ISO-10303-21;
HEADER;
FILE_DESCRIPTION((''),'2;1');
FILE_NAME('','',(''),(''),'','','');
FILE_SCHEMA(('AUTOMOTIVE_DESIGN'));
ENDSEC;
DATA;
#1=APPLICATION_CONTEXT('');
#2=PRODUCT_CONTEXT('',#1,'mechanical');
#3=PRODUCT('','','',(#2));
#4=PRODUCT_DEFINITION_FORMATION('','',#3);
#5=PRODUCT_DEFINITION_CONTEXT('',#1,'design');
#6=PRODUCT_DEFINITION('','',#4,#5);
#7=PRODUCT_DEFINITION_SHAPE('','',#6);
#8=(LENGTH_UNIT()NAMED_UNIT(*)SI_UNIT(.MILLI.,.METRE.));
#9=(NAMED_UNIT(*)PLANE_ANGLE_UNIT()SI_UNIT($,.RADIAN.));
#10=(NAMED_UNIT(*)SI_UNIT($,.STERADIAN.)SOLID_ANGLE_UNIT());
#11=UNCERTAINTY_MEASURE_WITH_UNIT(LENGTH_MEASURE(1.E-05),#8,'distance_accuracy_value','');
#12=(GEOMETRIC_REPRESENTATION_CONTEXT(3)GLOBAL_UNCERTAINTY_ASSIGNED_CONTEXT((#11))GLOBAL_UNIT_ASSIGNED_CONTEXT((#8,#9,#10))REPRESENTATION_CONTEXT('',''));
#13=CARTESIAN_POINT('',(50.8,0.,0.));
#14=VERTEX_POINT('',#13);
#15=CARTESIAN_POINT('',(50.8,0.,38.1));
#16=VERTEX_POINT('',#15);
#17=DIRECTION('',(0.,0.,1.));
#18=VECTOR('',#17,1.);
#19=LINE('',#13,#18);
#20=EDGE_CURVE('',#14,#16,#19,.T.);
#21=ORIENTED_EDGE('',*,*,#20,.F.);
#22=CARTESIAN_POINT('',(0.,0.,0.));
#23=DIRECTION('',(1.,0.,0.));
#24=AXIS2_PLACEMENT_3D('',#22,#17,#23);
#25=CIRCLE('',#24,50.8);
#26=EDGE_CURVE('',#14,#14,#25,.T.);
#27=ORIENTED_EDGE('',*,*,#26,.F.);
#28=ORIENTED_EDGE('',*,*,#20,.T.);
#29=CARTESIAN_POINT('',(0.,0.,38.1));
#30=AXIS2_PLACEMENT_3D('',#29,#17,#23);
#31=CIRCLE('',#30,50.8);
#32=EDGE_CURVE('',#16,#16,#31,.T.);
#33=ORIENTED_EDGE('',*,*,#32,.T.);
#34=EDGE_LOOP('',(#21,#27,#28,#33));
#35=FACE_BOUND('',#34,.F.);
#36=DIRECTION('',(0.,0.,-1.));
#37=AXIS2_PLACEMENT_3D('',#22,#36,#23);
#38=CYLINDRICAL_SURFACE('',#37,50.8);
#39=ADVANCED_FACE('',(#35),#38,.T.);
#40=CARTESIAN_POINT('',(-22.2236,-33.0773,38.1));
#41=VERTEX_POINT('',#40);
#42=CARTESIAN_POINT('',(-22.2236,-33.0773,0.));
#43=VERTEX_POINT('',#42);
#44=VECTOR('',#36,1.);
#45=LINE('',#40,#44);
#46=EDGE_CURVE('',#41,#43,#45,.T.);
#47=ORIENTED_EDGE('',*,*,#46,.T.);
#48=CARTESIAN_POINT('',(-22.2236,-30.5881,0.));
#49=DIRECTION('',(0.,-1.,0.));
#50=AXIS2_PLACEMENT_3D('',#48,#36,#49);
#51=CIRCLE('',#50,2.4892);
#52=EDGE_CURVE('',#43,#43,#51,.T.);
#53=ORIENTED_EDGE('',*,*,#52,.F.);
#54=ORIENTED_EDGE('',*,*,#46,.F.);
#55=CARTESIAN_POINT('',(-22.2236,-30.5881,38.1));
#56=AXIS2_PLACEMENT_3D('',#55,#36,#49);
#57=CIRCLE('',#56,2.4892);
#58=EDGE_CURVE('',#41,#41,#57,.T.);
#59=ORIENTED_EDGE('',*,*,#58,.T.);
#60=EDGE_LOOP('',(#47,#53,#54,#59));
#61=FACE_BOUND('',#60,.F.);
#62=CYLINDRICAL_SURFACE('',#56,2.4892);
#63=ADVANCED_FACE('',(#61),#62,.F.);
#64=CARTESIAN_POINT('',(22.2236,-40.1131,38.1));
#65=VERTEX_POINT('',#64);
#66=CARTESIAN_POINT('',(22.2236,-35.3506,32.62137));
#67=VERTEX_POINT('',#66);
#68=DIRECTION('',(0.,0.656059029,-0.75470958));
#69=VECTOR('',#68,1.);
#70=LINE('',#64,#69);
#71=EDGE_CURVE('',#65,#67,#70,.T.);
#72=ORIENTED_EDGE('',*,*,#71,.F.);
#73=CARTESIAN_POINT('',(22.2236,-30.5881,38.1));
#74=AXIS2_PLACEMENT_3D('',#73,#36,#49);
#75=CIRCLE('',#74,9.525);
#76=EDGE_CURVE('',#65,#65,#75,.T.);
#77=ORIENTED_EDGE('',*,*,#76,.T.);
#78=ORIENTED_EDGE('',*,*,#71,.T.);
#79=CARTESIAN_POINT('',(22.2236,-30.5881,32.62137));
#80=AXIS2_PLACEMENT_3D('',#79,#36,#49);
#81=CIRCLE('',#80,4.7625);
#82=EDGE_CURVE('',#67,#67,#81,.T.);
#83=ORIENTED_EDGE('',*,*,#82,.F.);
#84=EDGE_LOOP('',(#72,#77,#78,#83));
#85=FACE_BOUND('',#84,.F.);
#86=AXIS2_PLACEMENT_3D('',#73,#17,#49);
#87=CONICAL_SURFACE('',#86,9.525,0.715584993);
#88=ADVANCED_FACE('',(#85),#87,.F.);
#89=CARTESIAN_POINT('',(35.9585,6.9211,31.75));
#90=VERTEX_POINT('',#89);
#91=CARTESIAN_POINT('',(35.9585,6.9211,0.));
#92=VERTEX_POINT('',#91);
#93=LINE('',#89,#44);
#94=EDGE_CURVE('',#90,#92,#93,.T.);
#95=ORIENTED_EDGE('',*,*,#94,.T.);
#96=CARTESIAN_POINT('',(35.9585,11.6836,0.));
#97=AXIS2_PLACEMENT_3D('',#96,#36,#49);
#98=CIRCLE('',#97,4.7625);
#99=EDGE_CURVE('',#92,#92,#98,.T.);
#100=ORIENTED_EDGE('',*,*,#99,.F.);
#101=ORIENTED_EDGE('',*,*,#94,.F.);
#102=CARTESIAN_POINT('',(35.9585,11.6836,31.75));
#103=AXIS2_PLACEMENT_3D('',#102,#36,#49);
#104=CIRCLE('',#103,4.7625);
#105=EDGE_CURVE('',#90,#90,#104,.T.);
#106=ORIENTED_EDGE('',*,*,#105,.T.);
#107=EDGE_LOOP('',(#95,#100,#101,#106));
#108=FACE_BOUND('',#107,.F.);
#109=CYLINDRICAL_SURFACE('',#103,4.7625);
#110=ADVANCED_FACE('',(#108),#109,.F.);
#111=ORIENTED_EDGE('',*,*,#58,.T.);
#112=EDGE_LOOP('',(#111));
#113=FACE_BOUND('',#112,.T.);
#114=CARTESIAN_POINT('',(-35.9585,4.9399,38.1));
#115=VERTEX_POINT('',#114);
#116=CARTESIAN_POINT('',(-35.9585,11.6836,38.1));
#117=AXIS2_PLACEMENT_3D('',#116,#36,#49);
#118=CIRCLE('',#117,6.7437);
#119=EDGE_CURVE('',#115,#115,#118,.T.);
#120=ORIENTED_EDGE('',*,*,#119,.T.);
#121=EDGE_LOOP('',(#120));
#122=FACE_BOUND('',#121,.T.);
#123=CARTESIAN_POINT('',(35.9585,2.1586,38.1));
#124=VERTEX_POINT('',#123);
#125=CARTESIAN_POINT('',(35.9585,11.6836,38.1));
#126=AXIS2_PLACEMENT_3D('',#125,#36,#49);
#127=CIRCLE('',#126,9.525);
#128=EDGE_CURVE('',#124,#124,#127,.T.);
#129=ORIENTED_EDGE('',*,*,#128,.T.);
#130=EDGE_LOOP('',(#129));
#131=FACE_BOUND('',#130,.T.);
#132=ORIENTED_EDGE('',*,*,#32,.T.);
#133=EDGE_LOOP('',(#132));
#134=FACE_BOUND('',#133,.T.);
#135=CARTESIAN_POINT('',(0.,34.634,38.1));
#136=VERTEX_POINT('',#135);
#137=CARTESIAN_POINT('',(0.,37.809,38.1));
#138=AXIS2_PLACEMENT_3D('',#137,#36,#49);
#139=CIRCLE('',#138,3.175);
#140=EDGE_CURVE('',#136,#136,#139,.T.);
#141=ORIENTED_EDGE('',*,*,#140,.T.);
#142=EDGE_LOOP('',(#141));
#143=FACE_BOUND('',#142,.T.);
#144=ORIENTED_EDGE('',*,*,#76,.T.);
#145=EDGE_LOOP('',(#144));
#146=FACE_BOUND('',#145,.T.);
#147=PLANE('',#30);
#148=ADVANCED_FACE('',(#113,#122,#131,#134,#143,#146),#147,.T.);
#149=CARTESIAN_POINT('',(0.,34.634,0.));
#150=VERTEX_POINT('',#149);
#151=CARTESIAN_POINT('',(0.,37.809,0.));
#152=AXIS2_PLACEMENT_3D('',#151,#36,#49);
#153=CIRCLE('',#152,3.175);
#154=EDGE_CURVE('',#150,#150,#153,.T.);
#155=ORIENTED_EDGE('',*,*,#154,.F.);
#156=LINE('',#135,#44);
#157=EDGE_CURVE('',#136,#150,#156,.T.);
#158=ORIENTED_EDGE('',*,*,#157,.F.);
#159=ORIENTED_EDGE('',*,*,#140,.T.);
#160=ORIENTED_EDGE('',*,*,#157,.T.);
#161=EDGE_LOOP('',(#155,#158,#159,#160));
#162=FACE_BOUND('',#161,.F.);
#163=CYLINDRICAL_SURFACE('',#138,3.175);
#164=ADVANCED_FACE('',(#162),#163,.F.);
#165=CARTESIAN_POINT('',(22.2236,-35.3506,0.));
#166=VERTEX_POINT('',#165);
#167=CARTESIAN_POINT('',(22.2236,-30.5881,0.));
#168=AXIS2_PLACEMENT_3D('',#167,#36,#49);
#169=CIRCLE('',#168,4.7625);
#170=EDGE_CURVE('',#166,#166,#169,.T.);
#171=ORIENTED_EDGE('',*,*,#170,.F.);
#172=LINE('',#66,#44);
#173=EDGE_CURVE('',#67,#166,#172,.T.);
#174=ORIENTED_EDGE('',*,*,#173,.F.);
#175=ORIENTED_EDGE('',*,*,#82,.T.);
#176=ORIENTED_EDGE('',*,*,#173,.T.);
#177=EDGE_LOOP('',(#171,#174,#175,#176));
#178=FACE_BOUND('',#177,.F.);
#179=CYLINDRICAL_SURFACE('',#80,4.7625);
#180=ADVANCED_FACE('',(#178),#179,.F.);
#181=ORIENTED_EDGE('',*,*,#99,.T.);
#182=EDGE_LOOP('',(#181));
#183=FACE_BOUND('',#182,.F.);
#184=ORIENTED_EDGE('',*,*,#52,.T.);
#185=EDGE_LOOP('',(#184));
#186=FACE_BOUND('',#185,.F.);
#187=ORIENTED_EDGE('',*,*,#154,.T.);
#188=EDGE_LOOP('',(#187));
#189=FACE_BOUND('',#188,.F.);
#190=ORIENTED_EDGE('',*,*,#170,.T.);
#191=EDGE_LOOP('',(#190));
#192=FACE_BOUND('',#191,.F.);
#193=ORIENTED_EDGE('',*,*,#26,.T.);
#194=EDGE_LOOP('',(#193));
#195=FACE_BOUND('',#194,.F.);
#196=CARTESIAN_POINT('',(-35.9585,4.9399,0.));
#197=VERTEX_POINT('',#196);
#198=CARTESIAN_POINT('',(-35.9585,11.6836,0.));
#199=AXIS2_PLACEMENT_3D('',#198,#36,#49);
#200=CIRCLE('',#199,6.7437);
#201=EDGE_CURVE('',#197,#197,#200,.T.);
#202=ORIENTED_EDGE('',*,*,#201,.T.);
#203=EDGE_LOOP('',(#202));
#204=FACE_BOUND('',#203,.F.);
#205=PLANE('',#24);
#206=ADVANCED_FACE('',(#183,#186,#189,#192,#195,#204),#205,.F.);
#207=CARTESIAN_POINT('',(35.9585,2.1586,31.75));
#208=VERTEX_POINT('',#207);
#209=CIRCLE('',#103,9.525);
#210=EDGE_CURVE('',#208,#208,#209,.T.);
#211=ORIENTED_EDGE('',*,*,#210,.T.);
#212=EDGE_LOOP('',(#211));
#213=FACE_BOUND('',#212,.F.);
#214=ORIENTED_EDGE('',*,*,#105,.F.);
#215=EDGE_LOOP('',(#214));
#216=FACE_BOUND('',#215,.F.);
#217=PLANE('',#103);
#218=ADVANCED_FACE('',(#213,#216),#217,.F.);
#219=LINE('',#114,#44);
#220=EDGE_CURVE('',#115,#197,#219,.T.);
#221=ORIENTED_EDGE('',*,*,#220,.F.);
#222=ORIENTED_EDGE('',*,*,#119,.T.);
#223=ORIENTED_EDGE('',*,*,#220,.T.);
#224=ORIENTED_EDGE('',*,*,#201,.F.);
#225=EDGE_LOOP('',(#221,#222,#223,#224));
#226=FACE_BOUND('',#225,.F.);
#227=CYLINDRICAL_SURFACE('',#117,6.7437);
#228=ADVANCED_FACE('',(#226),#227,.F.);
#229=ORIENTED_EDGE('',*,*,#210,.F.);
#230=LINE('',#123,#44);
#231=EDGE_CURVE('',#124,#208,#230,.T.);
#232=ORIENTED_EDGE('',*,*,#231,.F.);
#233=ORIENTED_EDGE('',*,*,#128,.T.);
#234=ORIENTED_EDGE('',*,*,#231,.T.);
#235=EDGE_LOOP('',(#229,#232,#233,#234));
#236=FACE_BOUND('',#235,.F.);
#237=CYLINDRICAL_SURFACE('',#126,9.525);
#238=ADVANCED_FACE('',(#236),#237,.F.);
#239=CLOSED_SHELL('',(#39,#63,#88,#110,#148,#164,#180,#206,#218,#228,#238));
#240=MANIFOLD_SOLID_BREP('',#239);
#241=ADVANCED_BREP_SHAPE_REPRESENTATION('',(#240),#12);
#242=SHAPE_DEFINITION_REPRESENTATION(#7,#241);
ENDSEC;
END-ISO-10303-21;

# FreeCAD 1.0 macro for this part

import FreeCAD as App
import Part
import Sketcher
Q = App.Units.Quantity

doc = App.newDocument("Part")
body = doc.addObject("PartDesign::Body", "Body")

# Sketch on XY plane
sketch1 = body.newObject("Sketcher::SketchObject", "Sketch")
sketch1.AttachmentSupport = (doc.getObject("XY_Plane"), [""])
sketch1.MapMode = "FlatFace"
sketch1.addGeometry(Part.Circle(App.Vector(0, 0, 0), App.Vector(0, 0, 1), 50.8), False)
sketch1.addConstraint(Sketcher.Constraint("Coincident", 0, 3, -1, 1))
sketch1.addConstraint(Sketcher.Constraint("Diameter", 0, Q("4 in")))
pad1 = body.newObject("PartDesign::Pad", "Pad")
pad1.Profile = sketch1
pad1.Length = Q("1.5 in")

# Sketch on XY plane
sketch2 = body.newObject("Sketcher::SketchObject", "Sketch001")
sketch2.AttachmentSupport = (doc.getObject("XY_Plane"), [""])
sketch2.MapMode = "FlatFace"
sketch2.AttachmentOffset = App.Placement(App.Vector(0, 0, 1.5 * 25.4), App.Rotation())
sketch2.addGeometry(Part.Circle(App.Vector(0, 37.809, 0), App.Vector(0, 0, 1), 3.175), False)
sketch2.addConstraint(Sketcher.Constraint("PointOnObject", 0, 3, -2))
sketch2.addConstraint(Sketcher.Constraint("Diameter", 0, Q("0.25 in")))
sketch2.addConstraint(Sketcher.Constraint("DistanceY", -1, 1, 0, 3, Q("37.809 mm")))
doc.recompute()
hole = body.newObject("PartDesign::Hole", "Hole")
hole.Profile = sketch2
hole.ThreadType = "None"
hole.Diameter = Q("0.25 in")
hole.DepthType = "ThroughAll"

# Sketch on XY plane
sketch3 = body.newObject("Sketcher::SketchObject", "Sketch002")
sketch3.AttachmentSupport = (doc.getObject("XY_Plane"), [""])
sketch3.MapMode = "FlatFace"
sketch3.AttachmentOffset = App.Placement(App.Vector(0, 0, 1.5 * 25.4), App.Rotation())
sketch3.addGeometry(Part.Circle(App.Vector(35.9585, 11.6836, 0), App.Vector(0, 0, 1), 4.7625), False)
sketch3.addConstraint(Sketcher.Constraint("Diameter", 0, Q("0.375 in")))
sketch3.addConstraint(Sketcher.Constraint("DistanceX", -1, 1, 0, 3, Q("1.4157 in")))
sketch3.addConstraint(Sketcher.Constraint("DistanceY", -1, 1, 0, 3, Q("11.6836 mm")))
doc.recompute()
hole2 = body.newObject("PartDesign::Hole", "Hole001")
hole2.Profile = sketch3
hole2.ThreadType = "None"
hole2.Diameter = Q("0.375 in")
hole2.DepthType = "ThroughAll"
hole2.HoleCutType = "Counterbore"
hole2.HoleCutDiameter = Q("0.75 in")
hole2.HoleCutDepth = Q("0.25 in")

# Sketch on XY plane
sketch4 = body.newObject("Sketcher::SketchObject", "Sketch003")
sketch4.AttachmentSupport = (doc.getObject("XY_Plane"), [""])
sketch4.MapMode = "FlatFace"
sketch4.AttachmentOffset = App.Placement(App.Vector(0, 0, 1.5 * 25.4), App.Rotation())
sketch4.addGeometry(Part.Circle(App.Vector(22.2236, -30.5881, 0), App.Vector(0, 0, 1), 4.7625), False)
sketch4.addConstraint(Sketcher.Constraint("Diameter", 0, Q("0.375 in")))
sketch4.addConstraint(Sketcher.Constraint("DistanceX", -1, 1, 0, 3, Q("22.2236 mm")))
sketch4.addConstraint(Sketcher.Constraint("DistanceY", 0, 3, -1, 1, Q("30.588 mm")))
doc.recompute()
hole3 = body.newObject("PartDesign::Hole", "Hole002")
hole3.Profile = sketch4
hole3.ThreadType = "None"
hole3.Diameter = Q("0.375 in")
hole3.DepthType = "ThroughAll"
hole3.HoleCutType = "Countersink"
hole3.HoleCutDiameter = Q("0.75 in")
hole3.HoleCutCountersinkAngle = 82

# Sketch on XY plane
sketch5 = body.newObject("Sketcher::SketchObject", "Sketch004")
sketch5.AttachmentSupport = (doc.getObject("XY_Plane"), [""])
sketch5.MapMode = "FlatFace"
sketch5.AttachmentOffset = App.Placement(App.Vector(0, 0, 1.5 * 25.4), App.Rotation())
sketch5.addGeometry(Part.Circle(App.Vector(-22.2236, -30.5881, 0), App.Vector(0, 0, 1), 2.4892), False)
sketch5.addConstraint(Sketcher.Constraint("Diameter", 0, Q("0.196 in")))
sketch5.addConstraint(Sketcher.Constraint("DistanceX", 0, 3, -1, 1, Q("22.2236 mm")))
sketch5.addConstraint(Sketcher.Constraint("DistanceY", 0, 3, -1, 1, Q("30.588 mm")))
doc.recompute()
hole4 = body.newObject("PartDesign::Hole", "Hole003")
hole4.Profile = sketch5
hole4.ThreadType = "None"
hole4.Diameter = Q("0.196 in")
hole4.DepthType = "ThroughAll"

# Sketch on XY plane
sketch6 = body.newObject("Sketcher::SketchObject", "Sketch005")
sketch6.AttachmentSupport = (doc.getObject("XY_Plane"), [""])
sketch6.MapMode = "FlatFace"
sketch6.AttachmentOffset = App.Placement(App.Vector(0, 0, 1.5 * 25.4), App.Rotation())
sketch6.addGeometry(Part.Circle(App.Vector(-35.9585, 11.6836, 0), App.Vector(0, 0, 1), 6.7437), False)
sketch6.addConstraint(Sketcher.Constraint("Diameter", 0, Q("0.531 in")))
sketch6.addConstraint(Sketcher.Constraint("DistanceX", 0, 3, -1, 1, Q("1.4157 in")))
sketch6.addConstraint(Sketcher.Constraint("DistanceY", -1, 1, 0, 3, Q("11.6836 mm")))
doc.recompute()
hole5 = body.newObject("PartDesign::Hole", "Hole004")
hole5.Profile = sketch6
hole5.ThreadType = "None"
hole5.Diameter = Q("0.531 in")
hole5.DepthType = "ThroughAll"

doc.recompute()
